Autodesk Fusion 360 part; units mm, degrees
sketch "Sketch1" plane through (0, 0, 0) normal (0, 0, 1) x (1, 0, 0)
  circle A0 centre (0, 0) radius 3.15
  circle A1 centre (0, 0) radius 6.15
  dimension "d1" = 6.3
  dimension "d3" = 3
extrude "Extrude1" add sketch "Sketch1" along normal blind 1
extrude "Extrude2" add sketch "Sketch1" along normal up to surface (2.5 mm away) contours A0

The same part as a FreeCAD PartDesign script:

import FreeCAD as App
import Part
import Sketcher

doc = App.newDocument("Part")
body = doc.addObject("PartDesign::Body", "Body")

# Sketch on XY plane
sketch1 = doc.addObject("Sketcher::SketchObject", "Sketch")
body.addObject(sketch1)
sketch1.AttachmentSupport = (doc.XY_Plane, [""])
sketch1.MapMode = "FlatFace"
sketch1.addGeometry([
    Part.Circle(App.Vector(0, 0, 0), App.Vector(0, 0, 1), 6.2),
    Part.Circle(App.Vector(0, 0, 0), App.Vector(0, 0, 1), 3.1),
], False)
sketch1.addConstraint([
    Sketcher.Constraint("Coincident", 0, 3, -1, 1),
    Sketcher.Constraint("Coincident", 1, 3, -1, 1),
    Sketcher.Constraint("Diameter", 1, 6.3),
    Sketcher.Constraint("Diameter", 0, 12.3),
])
pad1 = doc.addObject("PartDesign::Pad", "Pad")
body.addObject(pad1)
pad1.Profile = sketch1
pad1.Length = 1

# Sketch on XY plane
sketch2 = doc.addObject("Sketcher::SketchObject", "Sketch001")
body.addObject(sketch2)
sketch2.AttachmentSupport = (doc.XY_Plane, [""])
sketch2.MapMode = "FlatFace"
sketch2.addGeometry(Part.Circle(App.Vector(0, 0, 0), App.Vector(0, 0, 1), 3.1), False)
sketch2.addConstraint([
    Sketcher.Constraint("Coincident", 0, 3, -1, 1),
    Sketcher.Constraint("Diameter", 0, 6.3),
])
pad2 = doc.addObject("PartDesign::Pad", "Pad001")
body.addObject(pad2)
pad2.Profile = sketch2
pad2.Length = 2.5

doc.recompute()
